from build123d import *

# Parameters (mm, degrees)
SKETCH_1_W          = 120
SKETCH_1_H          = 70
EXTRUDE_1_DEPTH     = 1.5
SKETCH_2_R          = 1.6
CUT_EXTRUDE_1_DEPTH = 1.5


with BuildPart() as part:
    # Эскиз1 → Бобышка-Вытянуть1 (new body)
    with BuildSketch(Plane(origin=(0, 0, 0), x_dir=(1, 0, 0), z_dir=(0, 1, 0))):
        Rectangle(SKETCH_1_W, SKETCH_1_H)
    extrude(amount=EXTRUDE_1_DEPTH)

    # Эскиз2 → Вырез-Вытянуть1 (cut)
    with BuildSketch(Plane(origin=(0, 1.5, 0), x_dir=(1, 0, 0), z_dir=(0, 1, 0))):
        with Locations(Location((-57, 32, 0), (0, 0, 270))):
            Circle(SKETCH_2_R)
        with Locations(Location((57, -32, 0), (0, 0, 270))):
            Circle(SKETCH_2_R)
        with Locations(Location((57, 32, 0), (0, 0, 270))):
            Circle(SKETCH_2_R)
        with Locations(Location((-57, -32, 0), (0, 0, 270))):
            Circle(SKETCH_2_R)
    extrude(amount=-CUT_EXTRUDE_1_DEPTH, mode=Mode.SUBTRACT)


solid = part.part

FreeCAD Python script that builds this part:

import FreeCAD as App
import Part
import Sketcher

V = App.Vector

doc = App.newDocument("Part")
body = doc.addObject("PartDesign::Body", "Body")

sketch1 = doc.addObject("Sketcher::SketchObject", "Sketch")
body.addObject(sketch1)
sketch1.AttachmentSupport = (doc.XZ_Plane, [""])
sketch1.MapMode = "FlatFace"
sketch1.addGeometry([
    Part.LineSegment(V(-60, -35, 0), V(-60, 35, 0)),
    Part.LineSegment(V(-60, 35, 0), V(60, 35, 0)),
    Part.LineSegment(V(60, 35, 0), V(60, -35, 0)),
    Part.LineSegment(V(60, -35, 0), V(-60, -35, 0)),
], False)
sketch1.addConstraint([
    Sketcher.Constraint("Coincident", 0, 2, 1, 1),
    Sketcher.Constraint("Coincident", 1, 2, 2, 1),
    Sketcher.Constraint("Coincident", 2, 2, 3, 1),
    Sketcher.Constraint("Coincident", 3, 2, 0, 1),
    Sketcher.Constraint("Vertical", 0),
    Sketcher.Constraint("Horizontal", 1),
    Sketcher.Constraint("Vertical", 2),
    Sketcher.Constraint("Horizontal", 3),
    Sketcher.Constraint("Symmetric", 0, 2, 2, 2, -1, 1),
    Sketcher.Constraint("DistanceX", 1, 1, 1, 2, 120.0),
    Sketcher.Constraint("DistanceY", 0, 1, 0, 2, 70.0),
])
pad1 = doc.addObject("PartDesign::Pad", "Pad")
body.addObject(pad1)
pad1.Profile = sketch1
pad1.Length = 1.5
pad1.Reversed = True

sketch2 = doc.addObject("Sketcher::SketchObject", "Sketch001")
body.addObject(sketch2)
sketch2.AttachmentSupport = (doc.XZ_Plane, [""])
sketch2.MapMode = "FlatFace"
sketch2.AttachmentOffset = App.Placement(V(0, 0, -1.5), App.Rotation())
sketch2.addGeometry([
    Part.Circle(V(-57, -32, 0), V(0, 0, 1), 1.6),
    Part.Circle(V(57, 32, 0), V(0, 0, 1), 1.6),
    Part.Circle(V(57, -32, 0), V(0, 0, 1), 1.6),
    Part.Circle(V(-57, 32, 0), V(0, 0, 1), 1.6),
], False)
sketch2.addConstraint([
    Sketcher.Constraint("Equal", 0, 1),
    Sketcher.Constraint("Equal", 1, 2),
    Sketcher.Constraint("Equal", 2, 3),
    Sketcher.Constraint("Symmetric", 0, 3, 1, 3, -1, 1),
    Sketcher.Constraint("Symmetric", 2, 3, 3, 3, -1, 1),
    Sketcher.Constraint("Symmetric", 0, 3, 2, 3, -2),
    Sketcher.Constraint("Diameter", 0, 3.2),
    Sketcher.Constraint("DistanceX", 0, 3, -1, 1, 57.0),
    Sketcher.Constraint("DistanceY", 0, 3, -1, 1, 32.0),
])
pocket1 = doc.addObject("PartDesign::Pocket", "Pocket")
body.addObject(pocket1)
pocket1.Profile = sketch2
pocket1.Length = 1.5
pocket1.Reversed = True

doc.recompute()
